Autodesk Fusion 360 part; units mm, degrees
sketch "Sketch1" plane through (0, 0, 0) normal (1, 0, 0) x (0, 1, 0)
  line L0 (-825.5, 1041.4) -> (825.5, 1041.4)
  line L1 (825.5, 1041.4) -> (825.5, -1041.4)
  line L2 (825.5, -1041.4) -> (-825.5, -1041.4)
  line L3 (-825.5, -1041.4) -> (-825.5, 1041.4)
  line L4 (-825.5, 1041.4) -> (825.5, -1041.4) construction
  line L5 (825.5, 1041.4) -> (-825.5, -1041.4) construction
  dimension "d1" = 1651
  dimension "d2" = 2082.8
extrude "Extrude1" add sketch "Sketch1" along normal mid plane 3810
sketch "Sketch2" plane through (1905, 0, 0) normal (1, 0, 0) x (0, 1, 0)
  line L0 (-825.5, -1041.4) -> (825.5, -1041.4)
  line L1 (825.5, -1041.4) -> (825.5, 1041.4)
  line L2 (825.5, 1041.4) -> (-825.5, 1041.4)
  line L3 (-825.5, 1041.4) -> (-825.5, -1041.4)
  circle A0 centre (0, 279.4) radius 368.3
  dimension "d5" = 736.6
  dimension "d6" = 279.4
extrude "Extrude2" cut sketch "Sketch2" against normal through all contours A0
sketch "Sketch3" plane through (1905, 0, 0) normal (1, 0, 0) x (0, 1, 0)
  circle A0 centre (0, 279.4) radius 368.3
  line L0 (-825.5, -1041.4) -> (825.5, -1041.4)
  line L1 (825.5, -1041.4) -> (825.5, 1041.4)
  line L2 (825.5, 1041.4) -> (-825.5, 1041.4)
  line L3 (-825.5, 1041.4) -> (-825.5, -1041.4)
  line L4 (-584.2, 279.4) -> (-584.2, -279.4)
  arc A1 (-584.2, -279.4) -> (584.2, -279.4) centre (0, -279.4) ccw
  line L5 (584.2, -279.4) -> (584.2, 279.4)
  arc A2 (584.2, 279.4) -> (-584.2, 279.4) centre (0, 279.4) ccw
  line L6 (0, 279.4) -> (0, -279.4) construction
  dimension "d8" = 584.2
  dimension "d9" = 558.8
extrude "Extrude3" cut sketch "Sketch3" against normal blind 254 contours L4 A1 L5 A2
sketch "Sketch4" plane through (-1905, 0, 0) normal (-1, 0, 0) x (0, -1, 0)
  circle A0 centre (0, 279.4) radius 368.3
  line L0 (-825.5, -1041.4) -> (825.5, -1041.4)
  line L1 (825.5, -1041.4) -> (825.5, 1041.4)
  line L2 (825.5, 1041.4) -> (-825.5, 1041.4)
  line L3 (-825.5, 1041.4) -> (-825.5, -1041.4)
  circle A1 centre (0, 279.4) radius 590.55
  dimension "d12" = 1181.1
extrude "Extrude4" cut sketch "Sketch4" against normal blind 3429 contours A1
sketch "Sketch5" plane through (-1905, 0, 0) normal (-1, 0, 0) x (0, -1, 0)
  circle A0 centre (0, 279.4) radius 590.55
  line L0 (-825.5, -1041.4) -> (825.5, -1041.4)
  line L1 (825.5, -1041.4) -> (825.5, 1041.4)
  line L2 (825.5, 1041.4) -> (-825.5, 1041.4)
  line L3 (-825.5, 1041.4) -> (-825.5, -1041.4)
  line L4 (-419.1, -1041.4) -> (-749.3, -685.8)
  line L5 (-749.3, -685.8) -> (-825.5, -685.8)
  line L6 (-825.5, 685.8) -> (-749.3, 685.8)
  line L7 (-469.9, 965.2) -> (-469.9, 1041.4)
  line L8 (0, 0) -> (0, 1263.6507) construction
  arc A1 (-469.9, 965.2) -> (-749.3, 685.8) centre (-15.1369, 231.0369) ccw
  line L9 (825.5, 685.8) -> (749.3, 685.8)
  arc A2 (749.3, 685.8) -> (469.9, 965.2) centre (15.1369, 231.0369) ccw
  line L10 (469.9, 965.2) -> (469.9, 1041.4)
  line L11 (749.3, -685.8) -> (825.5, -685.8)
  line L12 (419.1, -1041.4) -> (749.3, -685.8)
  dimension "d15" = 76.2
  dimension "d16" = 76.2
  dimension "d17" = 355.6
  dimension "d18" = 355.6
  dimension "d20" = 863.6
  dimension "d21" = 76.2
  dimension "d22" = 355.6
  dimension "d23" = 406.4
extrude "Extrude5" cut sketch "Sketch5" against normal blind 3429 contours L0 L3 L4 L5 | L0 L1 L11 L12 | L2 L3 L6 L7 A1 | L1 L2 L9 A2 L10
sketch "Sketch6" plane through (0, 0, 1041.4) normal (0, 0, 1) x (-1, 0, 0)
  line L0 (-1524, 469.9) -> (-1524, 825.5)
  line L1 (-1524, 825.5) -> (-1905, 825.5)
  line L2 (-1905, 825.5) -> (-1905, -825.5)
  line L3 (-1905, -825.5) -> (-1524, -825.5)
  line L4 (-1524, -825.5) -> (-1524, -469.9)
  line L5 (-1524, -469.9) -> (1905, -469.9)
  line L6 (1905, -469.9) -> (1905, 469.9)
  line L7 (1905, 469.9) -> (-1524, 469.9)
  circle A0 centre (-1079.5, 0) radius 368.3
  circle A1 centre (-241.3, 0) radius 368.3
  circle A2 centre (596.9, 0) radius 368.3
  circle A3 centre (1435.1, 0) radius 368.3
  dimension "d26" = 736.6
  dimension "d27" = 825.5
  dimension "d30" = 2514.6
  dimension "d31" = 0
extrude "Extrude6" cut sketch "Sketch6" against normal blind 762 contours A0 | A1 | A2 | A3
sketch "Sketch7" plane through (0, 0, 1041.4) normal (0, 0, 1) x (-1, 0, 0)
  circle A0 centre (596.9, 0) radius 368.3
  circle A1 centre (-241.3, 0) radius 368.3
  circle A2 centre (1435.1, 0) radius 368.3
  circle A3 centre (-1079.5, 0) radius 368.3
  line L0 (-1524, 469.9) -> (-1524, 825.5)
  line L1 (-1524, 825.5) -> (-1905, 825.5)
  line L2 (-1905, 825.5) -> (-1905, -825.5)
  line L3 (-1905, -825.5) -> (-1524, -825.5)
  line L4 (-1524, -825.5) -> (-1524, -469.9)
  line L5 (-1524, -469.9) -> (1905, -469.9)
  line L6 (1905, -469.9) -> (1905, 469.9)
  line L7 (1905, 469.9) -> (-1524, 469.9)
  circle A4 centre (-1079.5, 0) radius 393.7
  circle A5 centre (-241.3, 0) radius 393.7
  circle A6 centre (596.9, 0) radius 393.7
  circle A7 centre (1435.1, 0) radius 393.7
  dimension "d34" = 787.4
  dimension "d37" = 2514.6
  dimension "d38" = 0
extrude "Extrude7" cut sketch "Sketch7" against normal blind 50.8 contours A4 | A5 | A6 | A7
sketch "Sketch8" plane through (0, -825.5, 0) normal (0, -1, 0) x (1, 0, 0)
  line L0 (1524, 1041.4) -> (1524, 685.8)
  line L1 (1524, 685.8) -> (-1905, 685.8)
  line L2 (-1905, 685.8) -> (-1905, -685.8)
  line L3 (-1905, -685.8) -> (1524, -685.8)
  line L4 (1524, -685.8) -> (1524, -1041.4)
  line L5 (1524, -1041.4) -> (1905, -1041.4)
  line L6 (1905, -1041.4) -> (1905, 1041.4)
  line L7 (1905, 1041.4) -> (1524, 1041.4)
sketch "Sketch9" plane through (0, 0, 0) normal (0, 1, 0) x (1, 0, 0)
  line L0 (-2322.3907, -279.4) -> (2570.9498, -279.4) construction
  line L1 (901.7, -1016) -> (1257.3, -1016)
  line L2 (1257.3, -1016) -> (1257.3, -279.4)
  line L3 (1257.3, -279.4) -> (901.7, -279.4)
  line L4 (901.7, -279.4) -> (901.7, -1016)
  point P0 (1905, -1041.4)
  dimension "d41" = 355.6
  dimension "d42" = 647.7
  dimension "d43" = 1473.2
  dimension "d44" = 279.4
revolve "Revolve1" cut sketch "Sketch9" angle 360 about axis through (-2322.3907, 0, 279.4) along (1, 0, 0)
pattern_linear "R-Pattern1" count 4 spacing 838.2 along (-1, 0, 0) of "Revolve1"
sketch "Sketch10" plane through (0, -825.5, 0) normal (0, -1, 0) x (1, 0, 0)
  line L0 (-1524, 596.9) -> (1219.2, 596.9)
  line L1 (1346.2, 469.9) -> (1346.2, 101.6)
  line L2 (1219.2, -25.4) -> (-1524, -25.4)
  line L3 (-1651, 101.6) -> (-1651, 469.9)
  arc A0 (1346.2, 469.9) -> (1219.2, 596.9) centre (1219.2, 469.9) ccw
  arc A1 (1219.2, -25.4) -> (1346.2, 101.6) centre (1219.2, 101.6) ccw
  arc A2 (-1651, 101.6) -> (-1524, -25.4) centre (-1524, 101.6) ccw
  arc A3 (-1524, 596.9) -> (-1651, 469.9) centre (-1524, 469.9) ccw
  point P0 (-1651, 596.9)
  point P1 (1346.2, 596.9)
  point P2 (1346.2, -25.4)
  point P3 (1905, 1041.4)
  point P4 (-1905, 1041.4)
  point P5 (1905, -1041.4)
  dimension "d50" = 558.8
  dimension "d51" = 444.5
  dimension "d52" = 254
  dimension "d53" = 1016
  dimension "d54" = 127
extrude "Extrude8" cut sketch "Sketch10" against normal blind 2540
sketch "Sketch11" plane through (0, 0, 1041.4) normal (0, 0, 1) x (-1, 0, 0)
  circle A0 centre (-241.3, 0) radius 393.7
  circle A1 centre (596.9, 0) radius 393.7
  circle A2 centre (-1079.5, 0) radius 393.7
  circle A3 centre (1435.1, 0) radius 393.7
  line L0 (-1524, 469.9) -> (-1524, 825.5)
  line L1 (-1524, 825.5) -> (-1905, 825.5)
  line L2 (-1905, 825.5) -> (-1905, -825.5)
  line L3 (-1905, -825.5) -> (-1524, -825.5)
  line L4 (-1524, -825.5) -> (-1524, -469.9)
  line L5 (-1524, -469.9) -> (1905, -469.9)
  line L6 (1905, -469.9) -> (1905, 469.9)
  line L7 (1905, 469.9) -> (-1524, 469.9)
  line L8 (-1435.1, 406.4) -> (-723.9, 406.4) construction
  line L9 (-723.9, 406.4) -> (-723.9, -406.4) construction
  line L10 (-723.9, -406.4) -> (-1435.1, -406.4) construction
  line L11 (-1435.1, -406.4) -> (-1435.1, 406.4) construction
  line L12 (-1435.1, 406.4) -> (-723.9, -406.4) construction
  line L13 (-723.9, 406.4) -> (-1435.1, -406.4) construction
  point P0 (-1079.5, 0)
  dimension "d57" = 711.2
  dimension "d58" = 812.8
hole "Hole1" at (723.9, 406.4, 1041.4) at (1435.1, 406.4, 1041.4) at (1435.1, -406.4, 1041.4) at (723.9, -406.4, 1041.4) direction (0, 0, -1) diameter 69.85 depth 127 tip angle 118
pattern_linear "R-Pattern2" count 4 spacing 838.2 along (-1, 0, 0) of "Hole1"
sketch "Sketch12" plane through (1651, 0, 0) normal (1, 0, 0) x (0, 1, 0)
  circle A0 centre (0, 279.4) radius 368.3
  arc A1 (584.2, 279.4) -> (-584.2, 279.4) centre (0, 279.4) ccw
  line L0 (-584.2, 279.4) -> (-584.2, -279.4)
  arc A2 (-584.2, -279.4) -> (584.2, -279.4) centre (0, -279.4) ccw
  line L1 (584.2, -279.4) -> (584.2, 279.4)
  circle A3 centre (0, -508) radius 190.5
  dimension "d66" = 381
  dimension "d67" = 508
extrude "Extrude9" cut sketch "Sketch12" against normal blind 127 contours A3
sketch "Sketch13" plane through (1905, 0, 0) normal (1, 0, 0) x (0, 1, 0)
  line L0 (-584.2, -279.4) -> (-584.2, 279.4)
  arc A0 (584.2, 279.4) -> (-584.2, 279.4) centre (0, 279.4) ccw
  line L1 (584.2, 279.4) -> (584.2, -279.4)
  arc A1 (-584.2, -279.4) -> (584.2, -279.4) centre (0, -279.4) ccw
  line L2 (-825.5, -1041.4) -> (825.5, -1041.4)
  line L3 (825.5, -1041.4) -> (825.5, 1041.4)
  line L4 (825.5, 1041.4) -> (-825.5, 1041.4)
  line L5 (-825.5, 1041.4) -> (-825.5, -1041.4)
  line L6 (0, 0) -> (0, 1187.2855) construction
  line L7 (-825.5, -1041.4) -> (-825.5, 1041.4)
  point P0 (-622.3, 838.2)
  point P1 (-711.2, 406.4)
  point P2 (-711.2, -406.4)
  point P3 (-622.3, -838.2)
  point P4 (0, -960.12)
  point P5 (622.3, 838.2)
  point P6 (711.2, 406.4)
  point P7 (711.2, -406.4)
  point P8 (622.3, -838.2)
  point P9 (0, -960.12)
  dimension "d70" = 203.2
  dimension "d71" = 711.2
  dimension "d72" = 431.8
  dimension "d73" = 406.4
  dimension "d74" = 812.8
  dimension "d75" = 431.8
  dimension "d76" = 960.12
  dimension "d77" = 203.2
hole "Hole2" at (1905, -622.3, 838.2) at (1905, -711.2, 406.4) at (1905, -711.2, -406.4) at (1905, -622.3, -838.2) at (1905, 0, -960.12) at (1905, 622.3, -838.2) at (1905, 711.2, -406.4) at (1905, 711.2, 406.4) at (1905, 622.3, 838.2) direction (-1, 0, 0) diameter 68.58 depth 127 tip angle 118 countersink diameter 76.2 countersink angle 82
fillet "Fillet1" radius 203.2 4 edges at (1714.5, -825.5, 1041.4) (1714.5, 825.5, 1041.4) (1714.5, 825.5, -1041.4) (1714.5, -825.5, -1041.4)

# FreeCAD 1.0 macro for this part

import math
import FreeCAD as App
import Part
import Sketcher
Q = App.Units.Quantity


def edges_at(feature, points):
    """Names of the edges that pass closest to the given points."""
    edges = feature.Shape.Edges
    near = lambda p: min(range(len(edges)), key=lambda i: edges[i].distToShape(Part.Vertex(*p))[0])
    return sorted({f"Edge{near(p) + 1}" for p in points})

doc = App.newDocument("Part")
body = doc.addObject("PartDesign::Body", "Body")

sketch1 = body.newObject("Sketcher::SketchObject", "Sketch")
sketch1.AttachmentSupport = (doc.getObject("YZ_Plane"), [""])
sketch1.MapMode = "FlatFace"
sketch1.addGeometry([
    Part.LineSegment(App.Vector(825.5, 1041.4, 0), App.Vector(-825.5, 1041.4, 0)),
    Part.LineSegment(App.Vector(-825.5, 1041.4, 0), App.Vector(-825.5, -1041.4, 0)),
    Part.LineSegment(App.Vector(-825.5, -1041.4, 0), App.Vector(825.5, -1041.4, 0)),
    Part.LineSegment(App.Vector(825.5, -1041.4, 0), App.Vector(825.5, 1041.4, 0)),
], False)
sketch1.addConstraint([
    Sketcher.Constraint("Coincident", 0, 2, 1, 1),
    Sketcher.Constraint("Coincident", 1, 2, 2, 1),
    Sketcher.Constraint("Coincident", 2, 2, 3, 1),
    Sketcher.Constraint("Coincident", 3, 2, 0, 1),
    Sketcher.Constraint("Horizontal", 0),
    Sketcher.Constraint("Vertical", 1),
    Sketcher.Constraint("Horizontal", 2),
    Sketcher.Constraint("Vertical", 3),
    Sketcher.Constraint("Symmetric", 0, 2, 2, 2, -1, 1),
    Sketcher.Constraint("DistanceX", 0, 2, 0, 1, Q("65 in")),
    Sketcher.Constraint("DistanceY", 1, 2, 1, 1, Q("82 in")),
])
pad1 = body.newObject("PartDesign::Pad", "Pad")
pad1.Profile = sketch1
pad1.Length = Q("150 in")
pad1.Midplane = True

sketch2 = body.newObject("Sketcher::SketchObject", "Sketch001")
sketch2.AttachmentSupport = (doc.getObject("YZ_Plane"), [""])
sketch2.MapMode = "FlatFace"
sketch2.AttachmentOffset = App.Placement(App.Vector(0, 0, 75 * 25.4), App.Rotation())
sketch2.addGeometry(Part.Circle(App.Vector(0, 279.4, 0), App.Vector(0, 0, 1), 368.3), False)
sketch2.addConstraint([
    Sketcher.Constraint("PointOnObject", 0, 3, -2),
    Sketcher.Constraint("Diameter", 0, Q("29 in")),
    Sketcher.Constraint("DistanceY", -1, 1, 0, 3, Q("11 in")),
])
pocket1 = body.newObject("PartDesign::Pocket", "Pocket")
pocket1.Profile = sketch2
pocket1.Type = "ThroughAll"

sketch3 = body.newObject("Sketcher::SketchObject", "Sketch002")
sketch3.AttachmentSupport = (doc.getObject("YZ_Plane"), [""])
sketch3.MapMode = "FlatFace"
sketch3.AttachmentOffset = App.Placement(App.Vector(0, 0, 75 * 25.4), App.Rotation())
sketch3.addGeometry([
    Part.ArcOfCircle(Part.Circle(App.Vector(0, 279.4, 0), App.Vector(0, 0, 1), 584.2), math.radians(0), math.radians(180)),
    Part.LineSegment(App.Vector(-584.2, 279.4, 0), App.Vector(-584.2, -279.4, 0)),
    Part.ArcOfCircle(Part.Circle(App.Vector(0, -279.4, 0), App.Vector(0, 0, 1), 584.2), math.radians(180), math.radians(360)),
    Part.LineSegment(App.Vector(584.2, -279.4, 0), App.Vector(584.2, 279.4, 0)),
    Part.Circle(App.Vector(0, 279.4, 0), App.Vector(0, 0, 1), 368.3),
], False)
sketch3.addConstraint([
    Sketcher.Constraint("Tangent", 0, 2, 1, 1),
    Sketcher.Constraint("Tangent", 1, 2, 2, 1),
    Sketcher.Constraint("Tangent", 2, 2, 3, 1),
    Sketcher.Constraint("Tangent", 3, 2, 0, 1),
    Sketcher.Constraint("Vertical", 1),
    Sketcher.Constraint("Vertical", 3),
    Sketcher.Constraint("Coincident", 4, 3, 0, 3),
    Sketcher.Constraint("Symmetric", 0, 3, 2, 3, -1, 1),
    Sketcher.Constraint("Radius", 0, Q("23 in")),
    Sketcher.Constraint("DistanceY", 1, 2, 1, 1, Q("22 in")),
    Sketcher.Constraint("Diameter", 4, Q("29 in")),
])
pocket2 = body.newObject("PartDesign::Pocket", "Pocket001")
pocket2.Profile = sketch3
pocket2.Length = Q("10 in")

sketch4 = body.newObject("Sketcher::SketchObject", "Sketch003")
sketch4.AttachmentSupport = (doc.getObject("YZ_Plane"), [""])
sketch4.MapMode = "FlatFace"
sketch4.AttachmentOffset = App.Placement(App.Vector(0, 0, -75 * 25.4), App.Rotation())
sketch4.addGeometry([
    Part.Circle(App.Vector(0, 279.4, 0), App.Vector(0, 0, 1), 590.55),
    Part.Circle(App.Vector(0, 279.4, 0), App.Vector(0, 0, 1), 368.3),
], False)
sketch4.addConstraint([
    Sketcher.Constraint("Coincident", 1, 3, 0, 3),
    Sketcher.Constraint("PointOnObject", 0, 3, -2),
    Sketcher.Constraint("Diameter", 0, Q("46.5 in")),
    Sketcher.Constraint("Diameter", 1, Q("29 in")),
    Sketcher.Constraint("DistanceY", -1, 1, 0, 3, Q("11 in")),
])
pocket3 = body.newObject("PartDesign::Pocket", "Pocket002")
pocket3.Profile = sketch4
pocket3.Length = Q("135 in")
pocket3.Reversed = True

sketch5 = body.newObject("Sketcher::SketchObject", "Sketch004")
sketch5.AttachmentSupport = (doc.getObject("YZ_Plane"), [""])
sketch5.MapMode = "FlatFace"
sketch5.AttachmentOffset = App.Placement(App.Vector(0, 0, -75 * 25.4), App.Rotation())
sketch5.addGeometry([
    Part.LineSegment(App.Vector(825.5, -685.8, 0), App.Vector(825.5, -1041.4, 0)),
    Part.LineSegment(App.Vector(825.5, -1041.4, 0), App.Vector(419.1, -1041.4, 0)),
    Part.LineSegment(App.Vector(419.1, -1041.4, 0), App.Vector(749.3, -685.8, 0)),
    Part.LineSegment(App.Vector(749.3, -685.8, 0), App.Vector(825.5, -685.8, 0)),
    Part.LineSegment(App.Vector(-749.3, -685.8, 0), App.Vector(-419.1, -1041.4, 0)),
    Part.LineSegment(App.Vector(-419.1, -1041.4, 0), App.Vector(-825.5, -1041.4, 0)),
    Part.LineSegment(App.Vector(-825.5, -1041.4, 0), App.Vector(-825.5, -685.8, 0)),
    Part.LineSegment(App.Vector(-825.5, -685.8, 0), App.Vector(-749.3, -685.8, 0)),
    Part.LineSegment(App.Vector(825.5, 1041.4, 0), App.Vector(825.5, 685.8, 0)),
    Part.LineSegment(App.Vector(825.5, 685.8, 0), App.Vector(749.3, 685.8, 0)),
    Part.ArcOfCircle(Part.Circle(App.Vector(15.1369, 231.0369, 0), App.Vector(0, 0, 1), 863.599985), math.radians(31.775342), math.radians(58.224658)),
    Part.LineSegment(App.Vector(469.9, 965.2, 0), App.Vector(469.9, 1041.4, 0)),
    Part.LineSegment(App.Vector(469.9, 1041.4, 0), App.Vector(825.5, 1041.4, 0)),
    Part.LineSegment(App.Vector(-749.3, 685.8, 0), App.Vector(-825.5, 685.8, 0)),
    Part.LineSegment(App.Vector(-825.5, 685.8, 0), App.Vector(-825.5, 1041.4, 0)),
    Part.LineSegment(App.Vector(-825.5, 1041.4, 0), App.Vector(-469.9, 1041.4, 0)),
    Part.LineSegment(App.Vector(-469.9, 1041.4, 0), App.Vector(-469.9, 965.2, 0)),
    Part.ArcOfCircle(Part.Circle(App.Vector(-15.1369, 231.0369, 0), App.Vector(0, 0, 1), 863.599985), math.radians(121.775342), math.radians(148.224658)),
], False)
sketch5.addConstraint([
    Sketcher.Constraint("Coincident", 0, 2, 1, 1),
    Sketcher.Constraint("Coincident", 1, 2, 2, 1),
    Sketcher.Constraint("Coincident", 2, 2, 3, 1),
    Sketcher.Constraint("Coincident", 3, 2, 0, 1),
    Sketcher.Constraint("Coincident", 4, 2, 5, 1),
    Sketcher.Constraint("Coincident", 5, 2, 6, 1),
    Sketcher.Constraint("Coincident", 6, 2, 7, 1),
    Sketcher.Constraint("Coincident", 7, 2, 4, 1),
    Sketcher.Constraint("Coincident", 8, 2, 9, 1),
    Sketcher.Constraint("Coincident", 9, 2, 10, 1),
    Sketcher.Constraint("Coincident", 10, 2, 11, 1),
    Sketcher.Constraint("Coincident", 11, 2, 12, 1),
    Sketcher.Constraint("Coincident", 12, 2, 8, 1),
    Sketcher.Constraint("Coincident", 13, 2, 14, 1),
    Sketcher.Constraint("Coincident", 14, 2, 15, 1),
    Sketcher.Constraint("Coincident", 15, 2, 16, 1),
    Sketcher.Constraint("Coincident", 16, 2, 17, 1),
    Sketcher.Constraint("Coincident", 17, 2, 13, 1),
    Sketcher.Constraint("Vertical", 0),
    Sketcher.Constraint("Horizontal", 1),
    Sketcher.Constraint("Horizontal", 3),
    Sketcher.Constraint("Horizontal", 5),
    Sketcher.Constraint("Vertical", 6),
    Sketcher.Constraint("Horizontal", 7),
    Sketcher.Constraint("Vertical", 8),
    Sketcher.Constraint("Horizontal", 9),
    Sketcher.Constraint("Vertical", 11),
    Sketcher.Constraint("Horizontal", 12),
    Sketcher.Constraint("Horizontal", 13),
    Sketcher.Constraint("Vertical", 14),
    Sketcher.Constraint("Horizontal", 15),
    Sketcher.Constraint("Vertical", 16),
    Sketcher.Constraint("Equal", 10, 17),
    Sketcher.Constraint("Symmetric", 6, 2, 8, 2, -1, 1),
    Sketcher.Constraint("Symmetric", 3, 2, 13, 2, -1, 1),
    Sketcher.Constraint("Symmetric", 10, 3, 17, 3, -2),
    Sketcher.Constraint("Symmetric", 1, 2, 4, 2, -2),
    Sketcher.Constraint("Symmetric", 3, 2, 6, 2, -2),
    Sketcher.Constraint("Symmetric", 11, 2, 15, 2, -2),
    Sketcher.Constraint("Vertical", 2, 2, 9, 2),
    Sketcher.Constraint("Equal", 3, 7),
    Sketcher.Constraint("Equal", 15, 0),
    Sketcher.Constraint("Equal", 6, 8),
    Sketcher.Constraint("Equal", 13, 11),
    Sketcher.Constraint("Radius", 10, Q("34 in")),
    Sketcher.Constraint("DistanceX", 1, 2, 1, 1, Q("16 in")),
    Sketcher.Constraint("DistanceX", 3, 1, 3, 2, Q("3 in")),
    Sketcher.Constraint("DistanceX", 12, 1, 12, 2, Q("14 in")),
    Sketcher.Constraint("DistanceY", 0, 2, -1, 1, Q("41 in")),
    Sketcher.Constraint("DistanceX", 4, 2, 1, 2, Q("33 in")),
])
pocket4 = body.newObject("PartDesign::Pocket", "Pocket003")
pocket4.Profile = sketch5
pocket4.Length = Q("135 in")
pocket4.Reversed = True

sketch6 = body.newObject("Sketcher::SketchObject", "Sketch005")
sketch6.AttachmentSupport = (doc.getObject("XY_Plane"), [""])
sketch6.MapMode = "FlatFace"
sketch6.AttachmentOffset = App.Placement(App.Vector(0, 0, 41 * 25.4), App.Rotation())
sketch6.addGeometry([
    Part.Circle(App.Vector(1079.5, 0, 0), App.Vector(0, 0, 1), 368.3),
    Part.Circle(App.Vector(241.3, 0, 0), App.Vector(0, 0, 1), 368.3),
    Part.Circle(App.Vector(-596.9, 0, 0), App.Vector(0, 0, 1), 368.3),
    Part.Circle(App.Vector(-1435.1, 0, 0), App.Vector(0, 0, 1), 368.3),
], False)
sketch6.addConstraint([
    Sketcher.Constraint("Equal", 0, 1),
    Sketcher.Constraint("Equal", 1, 2),
    Sketcher.Constraint("Equal", 2, 3),
    Sketcher.Constraint("PointOnObject", 0, 3, -1),
    Sketcher.Constraint("PointOnObject", 1, 3, -1),
    Sketcher.Constraint("PointOnObject", 2, 3, -1),
    Sketcher.Constraint("PointOnObject", 3, 3, -1),
    Sketcher.Constraint("Diameter", 0, Q("29 in")),
    Sketcher.Constraint("DistanceX", 3, 3, 0, 3, Q("99 in")),
    Sketcher.Constraint("DistanceX", 1, 3, 0, 3, Q("33 in")),
    Sketcher.Constraint("DistanceX", 2, 3, 1, 3, Q("33 in")),
    Sketcher.Constraint("DistanceX", -1, 1, 0, 3, Q("42.5 in")),
])
pocket5 = body.newObject("PartDesign::Pocket", "Pocket004")
pocket5.Profile = sketch6
pocket5.Length = Q("30 in")

sketch7 = body.newObject("Sketcher::SketchObject", "Sketch006")
sketch7.AttachmentSupport = (doc.getObject("XY_Plane"), [""])
sketch7.MapMode = "FlatFace"
sketch7.AttachmentOffset = App.Placement(App.Vector(0, 0, 41 * 25.4), App.Rotation())
sketch7.addGeometry([
    Part.Circle(App.Vector(1079.5, 0, 0), App.Vector(0, 0, 1), 393.7),
    Part.Circle(App.Vector(1079.5, 0, 0), App.Vector(0, 0, 1), 368.3),
    Part.Circle(App.Vector(241.3, 0, 0), App.Vector(0, 0, 1), 393.7),
    Part.Circle(App.Vector(241.3, 0, 0), App.Vector(0, 0, 1), 368.3),
    Part.Circle(App.Vector(-596.9, 0, 0), App.Vector(0, 0, 1), 393.7),
    Part.Circle(App.Vector(-596.9, 0, 0), App.Vector(0, 0, 1), 368.3),
    Part.Circle(App.Vector(-1435.1, 0, 0), App.Vector(0, 0, 1), 393.7),
    Part.Circle(App.Vector(-1435.1, 0, 0), App.Vector(0, 0, 1), 368.3),
], False)
sketch7.addConstraint([
    Sketcher.Constraint("Coincident", 1, 3, 0, 3),
    Sketcher.Constraint("Coincident", 3, 3, 2, 3),
    Sketcher.Constraint("Coincident", 5, 3, 4, 3),
    Sketcher.Constraint("Coincident", 7, 3, 6, 3),
    Sketcher.Constraint("Equal", 0, 2),
    Sketcher.Constraint("Equal", 1, 3),
    Sketcher.Constraint("Equal", 2, 4),
    Sketcher.Constraint("Equal", 3, 5),
    Sketcher.Constraint("Equal", 4, 6),
    Sketcher.Constraint("Equal", 5, 7),
    Sketcher.Constraint("PointOnObject", 0, 3, -1),
    Sketcher.Constraint("PointOnObject", 2, 3, -1),
    Sketcher.Constraint("PointOnObject", 4, 3, -1),
    Sketcher.Constraint("PointOnObject", 6, 3, -1),
    Sketcher.Constraint("Diameter", 0, Q("31 in")),
    Sketcher.Constraint("Diameter", 1, Q("29 in")),
    Sketcher.Constraint("DistanceX", 6, 3, 0, 3, Q("99 in")),
    Sketcher.Constraint("DistanceX", 2, 3, 0, 3, Q("33 in")),
    Sketcher.Constraint("DistanceX", 4, 3, 2, 3, Q("33 in")),
    Sketcher.Constraint("DistanceX", -1, 1, 0, 3, Q("42.5 in")),
])
pocket6 = body.newObject("PartDesign::Pocket", "Pocket005")
pocket6.Profile = sketch7
pocket6.Length = Q("2 in")

sketch8 = body.newObject("Sketcher::SketchObject", "Sketch007")
sketch8.AttachmentSupport = (doc.getObject("XZ_Plane"), [""])
sketch8.MapMode = "FlatFace"
sketch8.addGeometry([
    Part.LineSegment(App.Vector(901.7, 279.4, 0), App.Vector(901.7, 1016, 0)),
    Part.LineSegment(App.Vector(901.7, 1016, 0), App.Vector(1257.3, 1016, 0)),
    Part.LineSegment(App.Vector(1257.3, 1016, 0), App.Vector(1257.3, 279.4, 0)),
    Part.LineSegment(App.Vector(1257.3, 279.4, 0), App.Vector(901.7, 279.4, 0)),
], False)
sketch8.addGeometry(Part.LineSegment(App.Vector(901.7, 279.4, 0), App.Vector(1257.3, 279.4, 0)), True)
sketch8.addConstraint([
    Sketcher.Constraint("Coincident", 0, 2, 1, 1),
    Sketcher.Constraint("Coincident", 1, 2, 2, 1),
    Sketcher.Constraint("Coincident", 2, 2, 3, 1),
    Sketcher.Constraint("Coincident", 3, 2, 0, 1),
    Sketcher.Constraint("Vertical", 0),
    Sketcher.Constraint("Horizontal", 1),
    Sketcher.Constraint("Vertical", 2),
    Sketcher.Constraint("Horizontal", 3),
    Sketcher.Constraint("Horizontal", 4),
    Sketcher.Constraint("Coincident", 4, 1, 3, 2),
    Sketcher.Constraint("Vertical", 1, 2, 4, 2),
    Sketcher.Constraint("DistanceX", 1, 1, 1, 2, Q("14 in")),
    Sketcher.Constraint("DistanceY", -1, 1, 2, 2, Q("11 in")),
    Sketcher.Constraint("DistanceY", 0, 1, 0, 2, Q("29 in")),
    Sketcher.Constraint("DistanceX", -1, 1, 0, 2, Q("35.5 in")),
])
groove = body.newObject("PartDesign::Groove", "Groove")
groove.Profile = sketch8
groove.ReferenceAxis = (sketch8, ["Axis0"])
groove.Angle = 360
doc.recompute()

linearpattern = body.newObject("PartDesign::LinearPattern", "LinearPattern")
linearpattern.Originals = [groove]
linearpattern.Direction = (doc.getObject("X_Axis"), [""])
linearpattern.Mode = "offset"
linearpattern.Offset = Q("33 in")
linearpattern.Occurrences = 4
linearpattern.Reversed = True
body.Tip = linearpattern

sketch9 = body.newObject("Sketcher::SketchObject", "Sketch008")
sketch9.AttachmentSupport = (doc.getObject("XZ_Plane"), [""])
sketch9.MapMode = "FlatFace"
sketch9.AttachmentOffset = App.Placement(App.Vector(0, 0, 32.5 * 25.4), App.Rotation())
sketch9.addGeometry([
    Part.LineSegment(App.Vector(1219.2, 596.9, 0), App.Vector(-1524, 596.9, 0)),
    Part.ArcOfCircle(Part.Circle(App.Vector(-1524, 469.9, 0), App.Vector(0, 0, 1), 127), math.radians(90), math.radians(180)),
    Part.LineSegment(App.Vector(-1651, 469.9, 0), App.Vector(-1651, 101.6, 0)),
    Part.ArcOfCircle(Part.Circle(App.Vector(-1524, 101.6, 0), App.Vector(0, 0, 1), 127), math.radians(180), math.radians(270)),
    Part.LineSegment(App.Vector(-1524, -25.4, 0), App.Vector(1219.2, -25.4, 0)),
    Part.ArcOfCircle(Part.Circle(App.Vector(1219.2, 101.6, 0), App.Vector(0, 0, 1), 127), math.radians(-90), math.radians(0)),
    Part.LineSegment(App.Vector(1346.2, 101.6, 0), App.Vector(1346.2, 469.9, 0)),
    Part.ArcOfCircle(Part.Circle(App.Vector(1219.2, 469.9, 0), App.Vector(0, 0, 1), 127), math.radians(0), math.radians(90)),
], False)
sketch9.addConstraint([
    Sketcher.Constraint("Tangent", 0, 2, 1, 1),
    Sketcher.Constraint("Tangent", 1, 2, 2, 1),
    Sketcher.Constraint("Tangent", 2, 2, 3, 1),
    Sketcher.Constraint("Tangent", 3, 2, 4, 1),
    Sketcher.Constraint("Tangent", 4, 2, 5, 1),
    Sketcher.Constraint("Tangent", 5, 2, 6, 1),
    Sketcher.Constraint("Tangent", 6, 2, 7, 1),
    Sketcher.Constraint("Tangent", 7, 2, 0, 1),
    Sketcher.Constraint("Horizontal", 0),
    Sketcher.Constraint("Vertical", 2),
    Sketcher.Constraint("Horizontal", 4),
    Sketcher.Constraint("Vertical", 6),
    Sketcher.Constraint("Equal", 1, 3),
    Sketcher.Constraint("Equal", 3, 5),
    Sketcher.Constraint("Equal", 5, 7),
    Sketcher.Constraint("Radius", 1, Q("5 in")),
    Sketcher.Constraint("DistanceX", 0, 2, 0, 1, Q("108 in")),
    Sketcher.Constraint("DistanceY", 2, 2, 2, 1, Q("14.5 in")),
    Sketcher.Constraint("DistanceX", 1, 3, -1, 1, Q("60 in")),
    Sketcher.Constraint("DistanceY", -1, 1, 3, 3, Q("4 in")),
])
pocket7 = body.newObject("PartDesign::Pocket", "Pocket006")
pocket7.Profile = sketch9
pocket7.Length = Q("100 in")

sketch10 = body.newObject("Sketcher::SketchObject", "Sketch009")
sketch10.AttachmentSupport = (doc.getObject("XY_Plane"), [""])
sketch10.MapMode = "FlatFace"
sketch10.AttachmentOffset = App.Placement(App.Vector(0, 0, 41 * 25.4), App.Rotation())
sketch10.addGeometry([
    Part.Circle(App.Vector(723.9, 406.4, 0), App.Vector(0, 0, 1), 34.925),
    Part.Circle(App.Vector(1435.1, 406.4, 0), App.Vector(0, 0, 1), 34.925),
    Part.Circle(App.Vector(1435.1, -406.4, 0), App.Vector(0, 0, 1), 34.925),
    Part.Circle(App.Vector(723.9, -406.4, 0), App.Vector(0, 0, 1), 34.925),
], False)
sketch10.addConstraint([
    Sketcher.Constraint("Equal", 0, 1),
    Sketcher.Constraint("Equal", 1, 2),
    Sketcher.Constraint("Equal", 2, 3),
    Sketcher.Constraint("Symmetric", 1, 3, 2, 3, -1),
    Sketcher.Constraint("Symmetric", 0, 3, 3, 3, -1),
    Sketcher.Constraint("Horizontal", 0, 3, 1, 3),
    Sketcher.Constraint("Diameter", 0, Q("2.75 in")),
    Sketcher.Constraint("DistanceY", -1, 1, 0, 3, Q("16 in")),
    Sketcher.Constraint("DistanceX", 0, 3, 1, 3, Q("28 in")),
    Sketcher.Constraint("DistanceX", -1, 1, 0, 3, Q("28.5 in")),
])
doc.recompute()
hole = body.newObject("PartDesign::Hole", "Hole")
hole.Profile = sketch10
hole.ThreadType = "None"
hole.Diameter = Q("2.75 in")
hole.DepthType = "Dimension"
hole.Depth = Q("5 in")
hole.DrillPoint = "Angled"
hole.DrillPointAngle = 118
doc.recompute()

linearpattern2 = body.newObject("PartDesign::LinearPattern", "LinearPattern001")
linearpattern2.Originals = [hole]
linearpattern2.Direction = (doc.getObject("X_Axis"), [""])
linearpattern2.Mode = "offset"
linearpattern2.Offset = Q("33 in")
linearpattern2.Occurrences = 4
linearpattern2.Reversed = True
body.Tip = linearpattern2

sketch11 = body.newObject("Sketcher::SketchObject", "Sketch010")
sketch11.AttachmentSupport = (doc.getObject("YZ_Plane"), [""])
sketch11.MapMode = "FlatFace"
sketch11.AttachmentOffset = App.Placement(App.Vector(0, 0, 65 * 25.4), App.Rotation())
sketch11.addGeometry(Part.Circle(App.Vector(0, -508, 0), App.Vector(0, 0, 1), 190.5), False)
sketch11.addConstraint([
    Sketcher.Constraint("PointOnObject", 0, 3, -2),
    Sketcher.Constraint("Diameter", 0, Q("15 in")),
    Sketcher.Constraint("DistanceY", 0, 3, -1, 1, Q("20 in")),
])
pocket8 = body.newObject("PartDesign::Pocket", "Pocket007")
pocket8.Profile = sketch11
pocket8.Length = Q("5 in")

sketch12 = body.newObject("Sketcher::SketchObject", "Sketch011")
sketch12.AttachmentSupport = (doc.getObject("YZ_Plane"), [""])
sketch12.MapMode = "FlatFace"
sketch12.AttachmentOffset = App.Placement(App.Vector(0, 0, 75 * 25.4), App.Rotation())
sketch12.addGeometry([
    Part.Circle(App.Vector(-622.3, 838.2, 0), App.Vector(0, 0, 1), 34.29),
    Part.Circle(App.Vector(-711.2, 406.4, 0), App.Vector(0, 0, 1), 34.29),
    Part.Circle(App.Vector(-711.2, -406.4, 0), App.Vector(0, 0, 1), 34.29),
    Part.Circle(App.Vector(-622.3, -838.2, 0), App.Vector(0, 0, 1), 34.29),
    Part.Circle(App.Vector(0, -960.12, 0), App.Vector(0, 0, 1), 34.29),
    Part.Circle(App.Vector(622.3, -838.2, 0), App.Vector(0, 0, 1), 34.29),
    Part.Circle(App.Vector(711.2, -406.4, 0), App.Vector(0, 0, 1), 34.29),
    Part.Circle(App.Vector(711.2, 406.4, 0), App.Vector(0, 0, 1), 34.29),
    Part.Circle(App.Vector(622.3, 838.2, 0), App.Vector(0, 0, 1), 34.29),
], False)
sketch12.addConstraint([
    Sketcher.Constraint("Equal", 0, 1),
    Sketcher.Constraint("Equal", 1, 2),
    Sketcher.Constraint("Equal", 2, 3),
    Sketcher.Constraint("Equal", 3, 4),
    Sketcher.Constraint("Equal", 4, 5),
    Sketcher.Constraint("Equal", 5, 6),
    Sketcher.Constraint("Equal", 6, 7),
    Sketcher.Constraint("Equal", 7, 8),
    Sketcher.Constraint("Symmetric", 0, 3, 5, 3, -1, 1),
    Sketcher.Constraint("Symmetric", 1, 3, 6, 3, -1, 1),
    Sketcher.Constraint("Symmetric", 2, 3, 7, 3, -1, 1),
    Sketcher.Constraint("Symmetric", 3, 3, 8, 3, -1, 1),
    Sketcher.Constraint("Symmetric", 3, 3, 5, 3, -2),
    Sketcher.Constraint("Symmetric", 2, 3, 6, 3, -2),
    Sketcher.Constraint("PointOnObject", 4, 3, -2),
    Sketcher.Constraint("Diameter", 0, Q("2.7 in")),
    Sketcher.Constraint("DistanceY", -1, 1, 0, 3, Q("33 in")),
    Sketcher.Constraint("DistanceX", 1, 3, -1, 1, Q("28 in")),
    Sketcher.Constraint("DistanceY", -1, 1, 1, 3, Q("16 in")),
    Sketcher.Constraint("DistanceX", 3, 3, 5, 3, Q("49 in")),
    Sketcher.Constraint("DistanceY", 4, 3, -1, 1, Q("37.8 in")),
])
doc.recompute()
hole2 = body.newObject("PartDesign::Hole", "Hole001")
hole2.Profile = sketch12
hole2.ThreadType = "None"
hole2.Diameter = Q("2.7 in")
hole2.DepthType = "Dimension"
hole2.Depth = Q("5 in")
hole2.DrillPoint = "Angled"
hole2.DrillPointAngle = 118
hole2.HoleCutType = "Countersink"
hole2.HoleCutDiameter = Q("3 in")
hole2.HoleCutCountersinkAngle = 82
doc.recompute()

fillet = body.newObject("PartDesign::Fillet", "Fillet")
fillet.Base = (hole2, edges_at(hole2, [
    (1714.5, -825.5, 1041.4),
    (1714.5, 825.5, 1041.4),
    (1714.5, 825.5, -1041.4),
    (1714.5, -825.5, -1041.4),
]))
fillet.Radius = Q("8 in")

doc.recompute()
